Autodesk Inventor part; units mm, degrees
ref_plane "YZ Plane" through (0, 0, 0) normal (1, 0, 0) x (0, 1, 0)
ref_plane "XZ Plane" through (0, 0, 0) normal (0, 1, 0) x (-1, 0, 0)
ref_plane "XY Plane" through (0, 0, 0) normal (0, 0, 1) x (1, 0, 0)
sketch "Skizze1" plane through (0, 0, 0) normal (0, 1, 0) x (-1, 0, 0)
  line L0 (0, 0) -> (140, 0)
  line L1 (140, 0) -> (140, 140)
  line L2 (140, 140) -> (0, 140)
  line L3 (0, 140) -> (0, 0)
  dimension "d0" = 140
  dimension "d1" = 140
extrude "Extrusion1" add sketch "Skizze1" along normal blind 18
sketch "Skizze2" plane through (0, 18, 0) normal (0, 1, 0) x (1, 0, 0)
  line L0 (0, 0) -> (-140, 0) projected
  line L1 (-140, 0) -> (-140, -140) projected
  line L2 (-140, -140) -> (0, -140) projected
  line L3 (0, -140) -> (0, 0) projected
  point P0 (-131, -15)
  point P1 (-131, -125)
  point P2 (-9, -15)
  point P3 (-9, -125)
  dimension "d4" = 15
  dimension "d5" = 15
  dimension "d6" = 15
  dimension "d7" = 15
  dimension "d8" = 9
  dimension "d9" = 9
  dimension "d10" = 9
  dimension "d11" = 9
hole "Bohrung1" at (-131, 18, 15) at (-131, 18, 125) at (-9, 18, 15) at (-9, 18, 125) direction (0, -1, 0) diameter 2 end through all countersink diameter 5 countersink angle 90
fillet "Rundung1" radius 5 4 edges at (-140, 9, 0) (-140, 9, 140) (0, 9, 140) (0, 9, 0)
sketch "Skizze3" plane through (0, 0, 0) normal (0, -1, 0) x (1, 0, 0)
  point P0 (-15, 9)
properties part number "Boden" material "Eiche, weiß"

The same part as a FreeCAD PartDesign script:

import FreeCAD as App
import Part
import Sketcher


def edges_at(feature, points):
    """Names of the edges that pass closest to the given points."""
    edges = feature.Shape.Edges
    near = lambda p: min(range(len(edges)), key=lambda i: edges[i].distToShape(Part.Vertex(*p))[0])
    return sorted({f"Edge{near(p) + 1}" for p in points})

doc = App.newDocument("Part")
params = doc.addObject("Spreadsheet::Sheet", "Params")
for row, (alias, value) in enumerate([
    ("sketch1_width", "140 mm"),
    ("pad1_length", "18 mm"),
    ("sketch2_diameter", "2 mm"),
    ("hole_diameter", "2 mm"),
    ("hole_csink_diameter", "5 mm"),
    ("fillet_radius", "5 mm"),
], start=1):
    params.set(f"A{row}", alias)
    params.set(f"B{row}", "=" + value)
    params.setAlias(f"B{row}", alias)

body = doc.addObject("PartDesign::Body", "Body")

sketch1 = body.newObject("Sketcher::SketchObject", "Sketch")
sketch1.AttachmentSupport = (doc.getObject("XZ_Plane"), [""])
sketch1.MapMode = "FlatFace"
sketch1.addGeometry(Part.LineSegment(App.Vector(0, 140, 0), App.Vector(0, 0, 0)), False)
sketch1.addGeometry(Part.LineSegment(App.Vector(0, 0, 0), App.Vector(-140, 0, 0)), False)
sketch1.addGeometry(Part.LineSegment(App.Vector(-140, 0, 0), App.Vector(-140, 140, 0)), False)
sketch1.addGeometry(Part.LineSegment(App.Vector(-140, 140, 0), App.Vector(0, 140, 0)), False)
sketch1.addConstraint(Sketcher.Constraint("Coincident", 0, 2, 1, 1))
sketch1.addConstraint(Sketcher.Constraint("Coincident", 1, 2, 2, 1))
sketch1.addConstraint(Sketcher.Constraint("Coincident", 2, 2, 3, 1))
sketch1.addConstraint(Sketcher.Constraint("Coincident", 3, 2, 0, 1))
sketch1.addConstraint(Sketcher.Constraint("Vertical", 0))
sketch1.addConstraint(Sketcher.Constraint("Horizontal", 1))
sketch1.addConstraint(Sketcher.Constraint("Vertical", 2))
sketch1.addConstraint(Sketcher.Constraint("Horizontal", 3))
sketch1.addConstraint(Sketcher.Constraint("Coincident", 0, 2, -1, 1))
sketch1.addConstraint(Sketcher.Constraint("Equal", 3, 0))
sketch1.addConstraint(Sketcher.Constraint("DistanceX", 1, 2, 1, 1, 140.0))
sketch1.setExpression("Constraints[10]", "Params.sketch1_width")
pad1 = body.newObject("PartDesign::Pad", "Pad")
pad1.Profile = sketch1
pad1.setExpression("Length", "Params.pad1_length")
pad1.Reversed = True

sketch2 = body.newObject("Sketcher::SketchObject", "Sketch001")
sketch2.AttachmentSupport = (doc.getObject("XZ_Plane"), [""])
sketch2.MapMode = "FlatFace"
sketch2.AttachmentOffset = App.Placement(App.Vector(0, 0, -18), App.Rotation())
sketch2.addGeometry(Part.Circle(App.Vector(-131, 15, 0), App.Vector(0, 0, 1), 1), False)
sketch2.addGeometry(Part.Circle(App.Vector(-131, 125, 0), App.Vector(0, 0, 1), 1), False)
sketch2.addGeometry(Part.Circle(App.Vector(-9, 15, 0), App.Vector(0, 0, 1), 1), False)
sketch2.addGeometry(Part.Circle(App.Vector(-9, 125, 0), App.Vector(0, 0, 1), 1), False)
sketch2.addConstraint(Sketcher.Constraint("Equal", 0, 1))
sketch2.addConstraint(Sketcher.Constraint("Equal", 1, 2))
sketch2.addConstraint(Sketcher.Constraint("Equal", 2, 3))
sketch2.addConstraint(Sketcher.Constraint("Horizontal", 0, 3, 2, 3))
sketch2.addConstraint(Sketcher.Constraint("Horizontal", 1, 3, 3, 3))
sketch2.addConstraint(Sketcher.Constraint("Vertical", 0, 3, 1, 3))
sketch2.addConstraint(Sketcher.Constraint("Vertical", 2, 3, 3, 3))
sketch2.addConstraint(Sketcher.Constraint("Diameter", 0, 2.0))
sketch2.addConstraint(Sketcher.Constraint("DistanceX", 0, 3, -1, 1, 131.0))
sketch2.addConstraint(Sketcher.Constraint("DistanceY", -1, 1, 0, 3, 15.0))
sketch2.addConstraint(Sketcher.Constraint("DistanceY", -1, 1, 1, 3, 125.0))
sketch2.addConstraint(Sketcher.Constraint("DistanceX", 2, 3, -1, 1, 9.0))
sketch2.setExpression("Constraints[7]", "Params.sketch2_diameter")
doc.recompute()
hole = body.newObject("PartDesign::Hole", "Hole")
hole.Profile = sketch2
hole.ThreadType = "None"
hole.setExpression("Diameter", "Params.hole_diameter")
hole.DepthType = "ThroughAll"
hole.HoleCutType = "Countersink"
hole.setExpression("HoleCutDiameter", "Params.hole_csink_diameter")
hole.HoleCutCountersinkAngle = 90
hole.Reversed = True
doc.recompute()

fillet = body.newObject("PartDesign::Fillet", "Fillet")
fillet.Base = (hole, edges_at(hole, [
    (-140, 9, 0),
    (-140, 9, 140),
    (0, 9, 140),
    (0, 9, 0),
]))
fillet.setExpression("Radius", "Params.fillet_radius")

doc.recompute()
